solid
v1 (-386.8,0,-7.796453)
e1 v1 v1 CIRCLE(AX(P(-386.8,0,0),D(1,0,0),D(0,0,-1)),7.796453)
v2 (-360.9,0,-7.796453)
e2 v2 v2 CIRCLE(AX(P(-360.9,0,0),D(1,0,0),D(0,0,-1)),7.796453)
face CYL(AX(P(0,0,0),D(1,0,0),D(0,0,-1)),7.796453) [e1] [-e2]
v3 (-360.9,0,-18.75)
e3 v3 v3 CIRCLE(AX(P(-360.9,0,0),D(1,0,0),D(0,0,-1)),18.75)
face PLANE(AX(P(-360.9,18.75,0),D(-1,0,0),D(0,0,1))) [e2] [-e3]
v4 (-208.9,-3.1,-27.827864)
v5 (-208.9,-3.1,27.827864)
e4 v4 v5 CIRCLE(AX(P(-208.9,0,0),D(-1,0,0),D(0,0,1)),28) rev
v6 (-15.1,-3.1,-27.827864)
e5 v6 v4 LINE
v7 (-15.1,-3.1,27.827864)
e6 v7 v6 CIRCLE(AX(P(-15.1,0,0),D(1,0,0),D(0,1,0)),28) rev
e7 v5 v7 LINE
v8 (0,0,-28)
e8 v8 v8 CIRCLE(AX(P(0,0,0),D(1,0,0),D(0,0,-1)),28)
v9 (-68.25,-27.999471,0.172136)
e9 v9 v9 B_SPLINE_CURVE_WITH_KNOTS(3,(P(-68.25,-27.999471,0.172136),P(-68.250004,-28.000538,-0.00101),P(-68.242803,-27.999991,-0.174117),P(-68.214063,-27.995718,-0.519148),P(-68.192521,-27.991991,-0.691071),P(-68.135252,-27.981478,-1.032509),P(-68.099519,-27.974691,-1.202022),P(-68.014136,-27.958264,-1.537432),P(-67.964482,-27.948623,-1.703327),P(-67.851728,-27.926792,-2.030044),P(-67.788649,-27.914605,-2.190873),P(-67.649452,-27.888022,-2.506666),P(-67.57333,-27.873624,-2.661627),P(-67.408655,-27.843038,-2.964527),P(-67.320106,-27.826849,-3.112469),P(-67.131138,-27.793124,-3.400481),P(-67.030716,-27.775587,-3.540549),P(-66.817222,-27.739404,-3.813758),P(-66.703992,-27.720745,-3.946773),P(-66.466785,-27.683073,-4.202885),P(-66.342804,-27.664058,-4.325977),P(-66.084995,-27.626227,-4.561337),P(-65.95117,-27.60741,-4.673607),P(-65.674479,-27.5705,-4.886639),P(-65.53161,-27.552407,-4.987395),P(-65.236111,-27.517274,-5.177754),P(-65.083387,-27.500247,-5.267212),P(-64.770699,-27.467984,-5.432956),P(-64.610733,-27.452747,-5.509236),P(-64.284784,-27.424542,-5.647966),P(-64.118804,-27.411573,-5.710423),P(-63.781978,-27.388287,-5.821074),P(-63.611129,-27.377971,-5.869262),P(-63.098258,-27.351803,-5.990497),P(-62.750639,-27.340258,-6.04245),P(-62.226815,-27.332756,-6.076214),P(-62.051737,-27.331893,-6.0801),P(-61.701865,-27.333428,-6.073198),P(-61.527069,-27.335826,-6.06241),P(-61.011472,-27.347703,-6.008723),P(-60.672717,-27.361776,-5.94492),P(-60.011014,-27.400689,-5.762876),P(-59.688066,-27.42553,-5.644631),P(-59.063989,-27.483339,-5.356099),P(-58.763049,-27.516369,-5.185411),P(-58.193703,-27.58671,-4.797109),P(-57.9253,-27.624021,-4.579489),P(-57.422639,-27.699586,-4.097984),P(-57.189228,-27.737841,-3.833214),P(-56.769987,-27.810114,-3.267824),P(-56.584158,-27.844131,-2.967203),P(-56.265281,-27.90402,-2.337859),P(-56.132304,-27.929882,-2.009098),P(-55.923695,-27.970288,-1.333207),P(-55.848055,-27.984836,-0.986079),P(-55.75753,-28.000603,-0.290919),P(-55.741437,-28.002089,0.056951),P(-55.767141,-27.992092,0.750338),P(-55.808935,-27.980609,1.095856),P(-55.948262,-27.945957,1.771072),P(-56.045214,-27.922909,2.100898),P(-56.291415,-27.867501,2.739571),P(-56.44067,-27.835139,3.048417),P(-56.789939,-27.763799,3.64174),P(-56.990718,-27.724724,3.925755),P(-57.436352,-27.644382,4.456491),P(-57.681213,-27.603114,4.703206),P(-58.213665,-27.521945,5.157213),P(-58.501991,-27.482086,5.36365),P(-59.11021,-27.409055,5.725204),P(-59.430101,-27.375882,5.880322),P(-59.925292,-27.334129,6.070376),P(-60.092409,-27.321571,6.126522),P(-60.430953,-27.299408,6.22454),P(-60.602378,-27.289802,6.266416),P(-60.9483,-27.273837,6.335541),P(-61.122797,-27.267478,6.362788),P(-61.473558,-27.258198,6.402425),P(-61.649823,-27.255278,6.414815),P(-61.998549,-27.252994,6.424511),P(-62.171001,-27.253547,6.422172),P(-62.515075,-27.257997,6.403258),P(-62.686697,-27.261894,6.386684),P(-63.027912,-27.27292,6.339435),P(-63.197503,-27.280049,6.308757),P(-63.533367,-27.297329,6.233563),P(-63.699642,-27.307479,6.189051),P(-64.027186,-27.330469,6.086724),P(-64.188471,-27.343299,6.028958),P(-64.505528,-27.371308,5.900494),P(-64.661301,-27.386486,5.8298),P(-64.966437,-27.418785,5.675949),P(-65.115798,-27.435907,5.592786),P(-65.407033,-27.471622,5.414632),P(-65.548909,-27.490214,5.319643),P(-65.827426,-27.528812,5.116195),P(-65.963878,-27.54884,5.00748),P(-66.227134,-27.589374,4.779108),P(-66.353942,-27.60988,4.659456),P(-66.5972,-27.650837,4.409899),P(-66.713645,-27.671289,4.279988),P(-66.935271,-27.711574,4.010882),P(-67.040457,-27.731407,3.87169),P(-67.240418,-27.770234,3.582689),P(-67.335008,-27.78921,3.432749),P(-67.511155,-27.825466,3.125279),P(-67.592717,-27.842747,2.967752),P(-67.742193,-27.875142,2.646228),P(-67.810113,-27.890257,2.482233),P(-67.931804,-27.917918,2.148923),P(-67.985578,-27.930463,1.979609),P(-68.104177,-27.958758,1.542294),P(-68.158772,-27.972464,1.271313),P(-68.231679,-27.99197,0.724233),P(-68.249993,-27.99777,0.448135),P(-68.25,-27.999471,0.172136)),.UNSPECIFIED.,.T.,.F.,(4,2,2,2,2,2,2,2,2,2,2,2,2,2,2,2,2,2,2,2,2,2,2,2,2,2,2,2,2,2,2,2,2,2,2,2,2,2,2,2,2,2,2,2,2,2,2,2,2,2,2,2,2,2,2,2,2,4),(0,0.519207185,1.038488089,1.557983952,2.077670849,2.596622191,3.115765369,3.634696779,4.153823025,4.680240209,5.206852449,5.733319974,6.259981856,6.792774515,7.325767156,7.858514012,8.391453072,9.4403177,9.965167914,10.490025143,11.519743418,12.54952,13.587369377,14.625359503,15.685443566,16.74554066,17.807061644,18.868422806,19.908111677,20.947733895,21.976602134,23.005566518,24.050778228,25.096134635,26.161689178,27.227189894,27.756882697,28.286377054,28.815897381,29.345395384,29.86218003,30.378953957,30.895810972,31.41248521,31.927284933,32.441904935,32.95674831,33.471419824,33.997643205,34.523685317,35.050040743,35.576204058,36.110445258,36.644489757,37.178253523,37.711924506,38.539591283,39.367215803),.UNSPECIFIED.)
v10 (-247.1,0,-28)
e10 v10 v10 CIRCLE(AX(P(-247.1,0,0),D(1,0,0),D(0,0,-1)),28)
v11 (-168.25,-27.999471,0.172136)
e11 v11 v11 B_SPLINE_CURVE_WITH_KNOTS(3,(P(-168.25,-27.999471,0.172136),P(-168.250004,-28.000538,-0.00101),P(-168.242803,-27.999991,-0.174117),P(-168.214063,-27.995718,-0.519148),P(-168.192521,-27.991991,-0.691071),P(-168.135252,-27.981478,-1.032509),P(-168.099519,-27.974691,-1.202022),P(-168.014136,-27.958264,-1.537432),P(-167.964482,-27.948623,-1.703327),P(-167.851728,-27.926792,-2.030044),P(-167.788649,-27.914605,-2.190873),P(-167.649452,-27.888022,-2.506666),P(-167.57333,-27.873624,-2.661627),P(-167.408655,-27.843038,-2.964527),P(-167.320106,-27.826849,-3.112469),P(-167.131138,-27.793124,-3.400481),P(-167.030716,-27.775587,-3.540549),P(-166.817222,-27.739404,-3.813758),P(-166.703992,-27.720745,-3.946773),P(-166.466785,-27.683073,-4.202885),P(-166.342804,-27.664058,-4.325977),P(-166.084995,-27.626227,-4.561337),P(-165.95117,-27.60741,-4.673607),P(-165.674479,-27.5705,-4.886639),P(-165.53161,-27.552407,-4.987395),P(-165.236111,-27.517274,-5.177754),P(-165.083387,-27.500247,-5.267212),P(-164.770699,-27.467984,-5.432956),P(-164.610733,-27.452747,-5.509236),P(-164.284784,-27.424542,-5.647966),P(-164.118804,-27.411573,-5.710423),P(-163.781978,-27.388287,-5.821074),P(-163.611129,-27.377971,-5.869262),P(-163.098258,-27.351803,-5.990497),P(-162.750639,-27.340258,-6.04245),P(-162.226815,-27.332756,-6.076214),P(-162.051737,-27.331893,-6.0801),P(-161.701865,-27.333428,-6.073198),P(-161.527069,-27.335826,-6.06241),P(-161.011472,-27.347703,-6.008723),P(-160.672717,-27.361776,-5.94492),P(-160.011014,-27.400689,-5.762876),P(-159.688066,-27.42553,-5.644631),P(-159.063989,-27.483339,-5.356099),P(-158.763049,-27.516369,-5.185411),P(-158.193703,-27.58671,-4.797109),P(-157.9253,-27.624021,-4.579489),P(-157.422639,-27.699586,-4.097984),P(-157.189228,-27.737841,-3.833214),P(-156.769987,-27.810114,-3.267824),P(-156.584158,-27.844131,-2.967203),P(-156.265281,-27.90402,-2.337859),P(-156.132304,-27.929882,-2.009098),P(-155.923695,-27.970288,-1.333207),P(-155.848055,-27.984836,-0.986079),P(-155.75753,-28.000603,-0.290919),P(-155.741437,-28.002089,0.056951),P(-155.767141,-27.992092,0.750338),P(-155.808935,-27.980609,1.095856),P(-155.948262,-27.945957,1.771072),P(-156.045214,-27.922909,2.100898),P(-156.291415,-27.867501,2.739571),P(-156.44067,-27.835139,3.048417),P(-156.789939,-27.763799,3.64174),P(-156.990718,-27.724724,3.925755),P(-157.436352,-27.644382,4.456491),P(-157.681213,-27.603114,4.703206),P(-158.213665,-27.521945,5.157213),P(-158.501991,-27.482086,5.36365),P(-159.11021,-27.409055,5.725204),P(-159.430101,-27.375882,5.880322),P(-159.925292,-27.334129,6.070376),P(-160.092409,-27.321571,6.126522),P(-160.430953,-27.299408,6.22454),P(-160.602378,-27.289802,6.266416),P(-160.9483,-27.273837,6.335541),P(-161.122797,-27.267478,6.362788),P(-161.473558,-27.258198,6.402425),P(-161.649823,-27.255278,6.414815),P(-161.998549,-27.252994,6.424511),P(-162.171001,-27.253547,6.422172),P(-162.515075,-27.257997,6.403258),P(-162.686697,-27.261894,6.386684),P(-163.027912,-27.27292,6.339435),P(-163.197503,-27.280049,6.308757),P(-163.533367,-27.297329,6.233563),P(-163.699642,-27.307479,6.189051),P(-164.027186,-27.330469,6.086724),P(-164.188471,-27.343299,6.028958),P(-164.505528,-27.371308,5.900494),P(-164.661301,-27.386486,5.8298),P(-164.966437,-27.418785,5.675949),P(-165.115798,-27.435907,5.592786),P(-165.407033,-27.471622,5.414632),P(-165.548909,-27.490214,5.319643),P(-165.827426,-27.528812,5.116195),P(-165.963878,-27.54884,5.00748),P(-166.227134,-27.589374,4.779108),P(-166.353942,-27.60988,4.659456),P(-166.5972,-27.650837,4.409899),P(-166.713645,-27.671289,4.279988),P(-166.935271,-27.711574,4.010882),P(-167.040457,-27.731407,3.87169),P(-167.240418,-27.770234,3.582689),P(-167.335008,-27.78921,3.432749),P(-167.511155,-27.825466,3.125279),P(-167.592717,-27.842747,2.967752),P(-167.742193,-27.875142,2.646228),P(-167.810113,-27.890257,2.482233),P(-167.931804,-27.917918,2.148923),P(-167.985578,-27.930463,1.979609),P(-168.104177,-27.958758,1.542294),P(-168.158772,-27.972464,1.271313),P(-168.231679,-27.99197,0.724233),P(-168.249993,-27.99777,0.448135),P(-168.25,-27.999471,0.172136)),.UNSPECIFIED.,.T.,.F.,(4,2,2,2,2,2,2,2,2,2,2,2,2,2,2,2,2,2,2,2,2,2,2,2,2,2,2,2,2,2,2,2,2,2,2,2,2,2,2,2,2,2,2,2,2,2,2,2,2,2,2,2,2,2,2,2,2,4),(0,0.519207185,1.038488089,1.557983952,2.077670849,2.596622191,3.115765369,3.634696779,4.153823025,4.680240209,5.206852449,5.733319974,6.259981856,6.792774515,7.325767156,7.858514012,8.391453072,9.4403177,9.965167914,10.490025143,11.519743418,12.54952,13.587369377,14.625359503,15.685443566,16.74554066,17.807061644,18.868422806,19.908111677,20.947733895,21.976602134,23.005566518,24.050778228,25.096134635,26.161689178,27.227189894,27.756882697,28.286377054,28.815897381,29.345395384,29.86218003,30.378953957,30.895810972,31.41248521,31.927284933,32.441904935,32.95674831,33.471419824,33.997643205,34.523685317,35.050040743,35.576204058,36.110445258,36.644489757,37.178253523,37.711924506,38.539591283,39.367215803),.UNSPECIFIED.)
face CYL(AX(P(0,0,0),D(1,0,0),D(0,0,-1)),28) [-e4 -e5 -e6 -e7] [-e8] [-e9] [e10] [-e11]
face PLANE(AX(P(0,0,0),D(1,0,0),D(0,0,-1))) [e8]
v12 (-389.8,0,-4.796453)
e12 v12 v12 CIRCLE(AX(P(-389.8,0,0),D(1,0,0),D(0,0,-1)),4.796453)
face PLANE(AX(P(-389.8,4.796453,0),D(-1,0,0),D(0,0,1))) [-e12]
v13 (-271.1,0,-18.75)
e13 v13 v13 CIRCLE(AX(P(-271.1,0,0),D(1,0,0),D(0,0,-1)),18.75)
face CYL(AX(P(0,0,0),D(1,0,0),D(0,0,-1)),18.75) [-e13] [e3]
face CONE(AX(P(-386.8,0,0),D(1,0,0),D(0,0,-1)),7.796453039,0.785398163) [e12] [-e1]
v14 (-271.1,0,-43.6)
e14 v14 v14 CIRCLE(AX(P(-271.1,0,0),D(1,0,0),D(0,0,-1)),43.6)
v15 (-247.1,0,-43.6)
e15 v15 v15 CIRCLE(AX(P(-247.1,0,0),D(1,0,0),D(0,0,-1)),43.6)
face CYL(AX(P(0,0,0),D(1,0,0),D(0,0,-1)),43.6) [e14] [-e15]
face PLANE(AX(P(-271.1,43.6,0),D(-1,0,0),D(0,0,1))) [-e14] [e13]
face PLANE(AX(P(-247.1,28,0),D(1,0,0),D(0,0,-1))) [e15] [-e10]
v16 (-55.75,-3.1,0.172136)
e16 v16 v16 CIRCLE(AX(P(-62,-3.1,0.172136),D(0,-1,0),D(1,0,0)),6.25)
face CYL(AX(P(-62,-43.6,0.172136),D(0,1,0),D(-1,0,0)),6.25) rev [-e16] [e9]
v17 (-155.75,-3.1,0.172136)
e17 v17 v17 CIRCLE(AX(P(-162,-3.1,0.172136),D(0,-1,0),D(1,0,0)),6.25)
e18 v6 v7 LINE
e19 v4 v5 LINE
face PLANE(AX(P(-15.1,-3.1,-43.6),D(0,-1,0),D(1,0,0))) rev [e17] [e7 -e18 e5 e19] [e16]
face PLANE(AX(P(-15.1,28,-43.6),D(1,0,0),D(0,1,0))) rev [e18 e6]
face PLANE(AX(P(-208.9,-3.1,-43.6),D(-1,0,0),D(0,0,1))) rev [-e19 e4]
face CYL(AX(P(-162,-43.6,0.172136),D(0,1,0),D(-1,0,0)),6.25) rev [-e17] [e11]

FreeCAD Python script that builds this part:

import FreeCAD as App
import Part
import Sketcher
from FreeCAD import Vector
Q = App.Units.Quantity


def add_polygon(sketch, points):
    """Adds a closed chain of lines whose ends are joined by coincident constraints."""
    first, n = sketch.GeometryCount, len(points)
    for a, b in zip(points, points[1:] + points[:1]):
        sketch.addGeometry(Part.LineSegment(App.Vector(*a, 0), App.Vector(*b, 0)), False)
    for i in range(n):
        sketch.addConstraint(Sketcher.Constraint("Coincident", first + i, 2, first + (i + 1) % n, 1))

doc = App.newDocument("Part")
body = doc.addObject("PartDesign::Body", "Body")

sketch1 = body.newObject("Sketcher::SketchObject", "Sketch")
sketch1.AttachmentSupport = (doc.getObject("XY_Plane"), [""])
sketch1.MapMode = "FlatFace"
add_polygon(sketch1, [(0, 0), (0, 28), (-247.1, 28), (-247.1, 43.6), (-271.1, 43.6), (-271.1, 18.8), (-360.9, 18.8), (-360.9, 7.8), (-386.8, 7.8), (-389.8, 4.8), (-389.8, 0)])
sketch1.addConstraint([
    Sketcher.Constraint("Vertical", 0),
    Sketcher.Constraint("Horizontal", 1),
    Sketcher.Constraint("Vertical", 2),
    Sketcher.Constraint("Horizontal", 3),
    Sketcher.Constraint("Vertical", 4),
    Sketcher.Constraint("Horizontal", 5),
    Sketcher.Constraint("Vertical", 6),
    Sketcher.Constraint("Horizontal", 7),
    Sketcher.Constraint("Vertical", 9),
    Sketcher.Constraint("Horizontal", 10),
    Sketcher.Constraint("Coincident", 10, 2, -1, 1),
    Sketcher.Constraint("DistanceX", 3, 2, 3, 1, 24.0),
    Sketcher.Constraint("DistanceY", 0, 1, 0, 2, 28.0),
    Sketcher.Constraint("Angle", 8, Q("-135 deg")),
    Sketcher.Constraint("DistanceX", 1, 2, 1, 1, 247.1),
    Sketcher.Constraint("DistanceX", 5, 2, 5, 1, 89.8),
    Sketcher.Constraint("DistanceX", 7, 2, 7, 1, 25.9),
    Sketcher.Constraint("DistanceX", 10, 1, 10, 2, 389.8),
    Sketcher.Constraint("DistanceY", 2, 1, 2, 2, 15.6),
    Sketcher.Constraint("DistanceY", 4, 2, 4, 1, 24.85),
    Sketcher.Constraint("DistanceY", 6, 2, 6, 1, 10.953547),
])
revolution = body.newObject("PartDesign::Revolution", "Revolution")
revolution.Profile = sketch1
revolution.ReferenceAxis = (sketch1, ["H_Axis"])
revolution.Angle = 360

sketch2 = body.newObject("Sketcher::SketchObject", "Sketch001")
sketch2.AttachmentSupport = (doc.getObject("XY_Plane"), [""])
sketch2.MapMode = "FlatFace"
add_polygon(sketch2, [(-209, 28), (-209, -3), (-15, -3), (-15, 28)])
sketch2.addConstraint([
    Sketcher.Constraint("Vertical", 0),
    Sketcher.Constraint("Horizontal", 1),
    Sketcher.Constraint("Vertical", 2),
    Sketcher.Constraint("Horizontal", 3),
    Sketcher.Constraint("DistanceX", 1, 1, 1, 2, 193.8),
    Sketcher.Constraint("DistanceY", 0, 2, 0, 1, 31.1),
    Sketcher.Constraint("DistanceY", -1, 1, 2, 2, 28.0),
    Sketcher.Constraint("DistanceX", 0, 2, -1, 1, 208.9),
])
pocket1 = body.newObject("PartDesign::Pocket", "Pocket")
pocket1.Profile = sketch2
pocket1.Type = "ThroughAll"
pocket1.Midplane = True

sketch3 = body.newObject("Sketcher::SketchObject", "Sketch002")
sketch3.AttachmentSupport = (doc.getObject("XZ_Plane"), [""])
sketch3.MapMode = "FlatFace"
sketch3.AttachmentOffset = App.Placement(Vector(0, 0, 3.1), App.Rotation())
sketch3.addGeometry([
    Part.Circle(Vector(-162, 0, 0), Vector(0, 0, 1), 6),
    Part.Circle(Vector(-62, 0, 0), Vector(0, 0, 1), 6),
], False)
sketch3.addConstraint([
    Sketcher.Constraint("Equal", 0, 1),
    Sketcher.Constraint("Horizontal", 0, 3, 1, 3),
    Sketcher.Constraint("Diameter", 0, 12.5),
    Sketcher.Constraint("DistanceX", 0, 3, -1, 1, 162.0),
    Sketcher.Constraint("DistanceX", 1, 3, -1, 1, 62.0),
    Sketcher.Constraint("DistanceY", -1, 1, 0, 3, 0.172136),
])
pocket2 = body.newObject("PartDesign::Pocket", "Pocket001")
pocket2.Profile = sketch3
pocket2.Type = "ThroughAll"
pocket2.Midplane = True

doc.recompute()
